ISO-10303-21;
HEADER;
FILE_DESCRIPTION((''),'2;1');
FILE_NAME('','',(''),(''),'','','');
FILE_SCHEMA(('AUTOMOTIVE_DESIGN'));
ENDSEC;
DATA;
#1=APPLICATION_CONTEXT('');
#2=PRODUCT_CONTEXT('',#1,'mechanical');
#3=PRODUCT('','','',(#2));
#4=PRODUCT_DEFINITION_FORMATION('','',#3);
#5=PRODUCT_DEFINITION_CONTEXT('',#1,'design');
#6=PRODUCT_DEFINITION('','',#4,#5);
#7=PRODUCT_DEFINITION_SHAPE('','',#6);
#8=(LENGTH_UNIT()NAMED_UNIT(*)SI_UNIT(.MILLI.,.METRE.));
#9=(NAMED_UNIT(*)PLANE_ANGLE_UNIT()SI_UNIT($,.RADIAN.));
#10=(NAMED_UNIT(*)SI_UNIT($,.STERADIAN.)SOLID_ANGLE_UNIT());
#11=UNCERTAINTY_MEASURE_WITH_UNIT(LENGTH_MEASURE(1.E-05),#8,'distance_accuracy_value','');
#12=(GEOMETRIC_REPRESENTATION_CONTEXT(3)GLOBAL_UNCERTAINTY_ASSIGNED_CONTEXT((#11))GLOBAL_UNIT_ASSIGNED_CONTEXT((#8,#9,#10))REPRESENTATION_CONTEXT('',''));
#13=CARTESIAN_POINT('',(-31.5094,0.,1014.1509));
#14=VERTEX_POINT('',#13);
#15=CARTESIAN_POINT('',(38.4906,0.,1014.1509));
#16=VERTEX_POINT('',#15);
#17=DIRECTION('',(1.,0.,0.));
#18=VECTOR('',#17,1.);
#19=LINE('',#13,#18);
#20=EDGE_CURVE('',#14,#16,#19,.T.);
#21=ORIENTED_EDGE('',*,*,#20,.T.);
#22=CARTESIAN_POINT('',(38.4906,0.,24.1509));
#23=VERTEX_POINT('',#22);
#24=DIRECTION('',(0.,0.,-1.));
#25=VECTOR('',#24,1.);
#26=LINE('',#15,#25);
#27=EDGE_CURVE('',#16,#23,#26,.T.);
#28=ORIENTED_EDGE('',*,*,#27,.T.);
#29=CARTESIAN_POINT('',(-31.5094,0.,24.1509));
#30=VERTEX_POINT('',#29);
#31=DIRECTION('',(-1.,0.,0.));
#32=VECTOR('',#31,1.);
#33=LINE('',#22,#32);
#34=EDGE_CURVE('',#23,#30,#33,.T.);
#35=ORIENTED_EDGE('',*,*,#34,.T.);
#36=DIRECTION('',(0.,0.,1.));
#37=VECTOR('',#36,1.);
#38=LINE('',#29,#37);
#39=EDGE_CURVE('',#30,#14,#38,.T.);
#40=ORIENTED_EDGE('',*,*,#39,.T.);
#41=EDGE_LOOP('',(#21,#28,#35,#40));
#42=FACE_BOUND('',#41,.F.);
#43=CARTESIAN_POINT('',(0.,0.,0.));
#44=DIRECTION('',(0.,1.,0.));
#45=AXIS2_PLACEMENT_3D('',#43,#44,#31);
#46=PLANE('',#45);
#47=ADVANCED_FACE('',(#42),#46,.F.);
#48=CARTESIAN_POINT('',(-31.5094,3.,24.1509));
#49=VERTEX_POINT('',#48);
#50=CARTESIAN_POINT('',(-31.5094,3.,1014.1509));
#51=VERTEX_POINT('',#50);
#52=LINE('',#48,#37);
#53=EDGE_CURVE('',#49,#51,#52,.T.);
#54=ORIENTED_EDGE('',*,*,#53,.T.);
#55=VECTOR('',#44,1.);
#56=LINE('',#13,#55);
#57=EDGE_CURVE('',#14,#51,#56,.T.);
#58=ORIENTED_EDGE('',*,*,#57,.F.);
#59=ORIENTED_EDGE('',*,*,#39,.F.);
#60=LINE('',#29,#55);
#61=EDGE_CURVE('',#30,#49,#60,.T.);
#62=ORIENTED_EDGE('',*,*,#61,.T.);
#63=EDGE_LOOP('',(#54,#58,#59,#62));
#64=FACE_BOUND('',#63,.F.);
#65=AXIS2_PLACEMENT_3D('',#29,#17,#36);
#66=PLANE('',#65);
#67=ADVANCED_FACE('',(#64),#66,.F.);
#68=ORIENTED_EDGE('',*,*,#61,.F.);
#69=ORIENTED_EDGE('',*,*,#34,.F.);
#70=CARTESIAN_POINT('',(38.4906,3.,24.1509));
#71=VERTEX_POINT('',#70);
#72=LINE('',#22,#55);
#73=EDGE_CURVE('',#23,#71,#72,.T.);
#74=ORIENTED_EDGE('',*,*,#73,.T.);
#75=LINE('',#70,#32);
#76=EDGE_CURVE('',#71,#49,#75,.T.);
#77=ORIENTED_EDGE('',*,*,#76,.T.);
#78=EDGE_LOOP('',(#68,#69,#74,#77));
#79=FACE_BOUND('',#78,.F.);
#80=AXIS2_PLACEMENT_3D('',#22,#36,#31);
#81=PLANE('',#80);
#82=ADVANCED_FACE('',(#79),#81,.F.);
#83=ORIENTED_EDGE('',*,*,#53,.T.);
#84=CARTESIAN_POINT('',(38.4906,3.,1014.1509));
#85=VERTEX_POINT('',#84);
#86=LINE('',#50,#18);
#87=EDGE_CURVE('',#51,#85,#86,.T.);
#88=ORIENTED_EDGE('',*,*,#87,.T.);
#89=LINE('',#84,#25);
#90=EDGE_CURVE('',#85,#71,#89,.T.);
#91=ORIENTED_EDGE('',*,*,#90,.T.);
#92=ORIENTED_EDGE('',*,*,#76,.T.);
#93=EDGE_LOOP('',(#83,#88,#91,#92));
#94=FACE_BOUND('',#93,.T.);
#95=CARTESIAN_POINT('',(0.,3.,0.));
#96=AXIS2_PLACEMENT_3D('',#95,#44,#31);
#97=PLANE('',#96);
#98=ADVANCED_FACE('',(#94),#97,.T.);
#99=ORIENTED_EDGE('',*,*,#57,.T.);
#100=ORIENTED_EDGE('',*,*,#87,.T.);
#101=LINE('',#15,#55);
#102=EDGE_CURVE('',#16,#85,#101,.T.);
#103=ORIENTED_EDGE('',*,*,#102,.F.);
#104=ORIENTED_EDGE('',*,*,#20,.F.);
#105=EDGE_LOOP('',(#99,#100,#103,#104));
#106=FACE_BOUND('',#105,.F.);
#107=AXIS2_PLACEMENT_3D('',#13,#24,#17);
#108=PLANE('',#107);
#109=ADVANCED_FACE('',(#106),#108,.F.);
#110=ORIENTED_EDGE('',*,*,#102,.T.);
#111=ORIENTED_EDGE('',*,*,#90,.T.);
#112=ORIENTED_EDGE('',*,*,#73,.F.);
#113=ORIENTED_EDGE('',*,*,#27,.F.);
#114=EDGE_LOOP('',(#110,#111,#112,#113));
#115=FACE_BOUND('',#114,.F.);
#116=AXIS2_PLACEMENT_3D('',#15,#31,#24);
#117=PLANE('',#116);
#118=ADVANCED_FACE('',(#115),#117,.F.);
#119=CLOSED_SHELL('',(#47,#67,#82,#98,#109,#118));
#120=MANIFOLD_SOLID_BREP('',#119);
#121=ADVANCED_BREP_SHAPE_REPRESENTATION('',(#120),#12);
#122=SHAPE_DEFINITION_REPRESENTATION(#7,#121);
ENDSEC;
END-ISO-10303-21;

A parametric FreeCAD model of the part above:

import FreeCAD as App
import Part
import Sketcher
from FreeCAD import Vector
Q = App.Units.Quantity


def add_polygon(sketch, points):
    """Adds a closed chain of lines whose ends are joined by coincident constraints."""
    first, n = sketch.GeometryCount, len(points)
    for a, b in zip(points, points[1:] + points[:1]):
        sketch.addGeometry(Part.LineSegment(App.Vector(*a, 0), App.Vector(*b, 0)), False)
    for i in range(n):
        sketch.addConstraint(Sketcher.Constraint("Coincident", first + i, 2, first + (i + 1) % n, 1))

doc = App.newDocument("Part")
body = doc.addObject("PartDesign::Body", "Body")

# Sketch on XZ plane
sketch1 = doc.addObject("Sketcher::SketchObject", "Sketch")
body.addObject(sketch1)
sketch1.AttachmentSupport = (doc.XZ_Plane, [""])
sketch1.MapMode = "FlatFace"
add_polygon(sketch1, [(-32, 24), (-32, 1014), (38, 1014), (38, 24)])  # lines 0-3
sketch1.addConstraint(Sketcher.Constraint("Vertical", 0))
sketch1.addConstraint(Sketcher.Constraint("Horizontal", 1))
sketch1.addConstraint(Sketcher.Constraint("Vertical", 2))
sketch1.addConstraint(Sketcher.Constraint("Horizontal", 3))
sketch1.addConstraint(Sketcher.Constraint("DistanceX", 1, 1, 1, 2, Q("70 mm")))
sketch1.addConstraint(Sketcher.Constraint("DistanceY", 0, 1, 0, 2, Q("990 mm")))
sketch1.addConstraint(Sketcher.Constraint("DistanceY", -1, 1, 0, 2, Q("1014.151 mm")))
sketch1.addConstraint(Sketcher.Constraint("DistanceX", 0, 2, -1, 1, Q("31.5094 mm")))
pad1 = doc.addObject("PartDesign::Pad", "Pad")
body.addObject(pad1)
pad1.Profile = sketch1
pad1.Length = 3
pad1.Reversed = True

doc.recompute()
